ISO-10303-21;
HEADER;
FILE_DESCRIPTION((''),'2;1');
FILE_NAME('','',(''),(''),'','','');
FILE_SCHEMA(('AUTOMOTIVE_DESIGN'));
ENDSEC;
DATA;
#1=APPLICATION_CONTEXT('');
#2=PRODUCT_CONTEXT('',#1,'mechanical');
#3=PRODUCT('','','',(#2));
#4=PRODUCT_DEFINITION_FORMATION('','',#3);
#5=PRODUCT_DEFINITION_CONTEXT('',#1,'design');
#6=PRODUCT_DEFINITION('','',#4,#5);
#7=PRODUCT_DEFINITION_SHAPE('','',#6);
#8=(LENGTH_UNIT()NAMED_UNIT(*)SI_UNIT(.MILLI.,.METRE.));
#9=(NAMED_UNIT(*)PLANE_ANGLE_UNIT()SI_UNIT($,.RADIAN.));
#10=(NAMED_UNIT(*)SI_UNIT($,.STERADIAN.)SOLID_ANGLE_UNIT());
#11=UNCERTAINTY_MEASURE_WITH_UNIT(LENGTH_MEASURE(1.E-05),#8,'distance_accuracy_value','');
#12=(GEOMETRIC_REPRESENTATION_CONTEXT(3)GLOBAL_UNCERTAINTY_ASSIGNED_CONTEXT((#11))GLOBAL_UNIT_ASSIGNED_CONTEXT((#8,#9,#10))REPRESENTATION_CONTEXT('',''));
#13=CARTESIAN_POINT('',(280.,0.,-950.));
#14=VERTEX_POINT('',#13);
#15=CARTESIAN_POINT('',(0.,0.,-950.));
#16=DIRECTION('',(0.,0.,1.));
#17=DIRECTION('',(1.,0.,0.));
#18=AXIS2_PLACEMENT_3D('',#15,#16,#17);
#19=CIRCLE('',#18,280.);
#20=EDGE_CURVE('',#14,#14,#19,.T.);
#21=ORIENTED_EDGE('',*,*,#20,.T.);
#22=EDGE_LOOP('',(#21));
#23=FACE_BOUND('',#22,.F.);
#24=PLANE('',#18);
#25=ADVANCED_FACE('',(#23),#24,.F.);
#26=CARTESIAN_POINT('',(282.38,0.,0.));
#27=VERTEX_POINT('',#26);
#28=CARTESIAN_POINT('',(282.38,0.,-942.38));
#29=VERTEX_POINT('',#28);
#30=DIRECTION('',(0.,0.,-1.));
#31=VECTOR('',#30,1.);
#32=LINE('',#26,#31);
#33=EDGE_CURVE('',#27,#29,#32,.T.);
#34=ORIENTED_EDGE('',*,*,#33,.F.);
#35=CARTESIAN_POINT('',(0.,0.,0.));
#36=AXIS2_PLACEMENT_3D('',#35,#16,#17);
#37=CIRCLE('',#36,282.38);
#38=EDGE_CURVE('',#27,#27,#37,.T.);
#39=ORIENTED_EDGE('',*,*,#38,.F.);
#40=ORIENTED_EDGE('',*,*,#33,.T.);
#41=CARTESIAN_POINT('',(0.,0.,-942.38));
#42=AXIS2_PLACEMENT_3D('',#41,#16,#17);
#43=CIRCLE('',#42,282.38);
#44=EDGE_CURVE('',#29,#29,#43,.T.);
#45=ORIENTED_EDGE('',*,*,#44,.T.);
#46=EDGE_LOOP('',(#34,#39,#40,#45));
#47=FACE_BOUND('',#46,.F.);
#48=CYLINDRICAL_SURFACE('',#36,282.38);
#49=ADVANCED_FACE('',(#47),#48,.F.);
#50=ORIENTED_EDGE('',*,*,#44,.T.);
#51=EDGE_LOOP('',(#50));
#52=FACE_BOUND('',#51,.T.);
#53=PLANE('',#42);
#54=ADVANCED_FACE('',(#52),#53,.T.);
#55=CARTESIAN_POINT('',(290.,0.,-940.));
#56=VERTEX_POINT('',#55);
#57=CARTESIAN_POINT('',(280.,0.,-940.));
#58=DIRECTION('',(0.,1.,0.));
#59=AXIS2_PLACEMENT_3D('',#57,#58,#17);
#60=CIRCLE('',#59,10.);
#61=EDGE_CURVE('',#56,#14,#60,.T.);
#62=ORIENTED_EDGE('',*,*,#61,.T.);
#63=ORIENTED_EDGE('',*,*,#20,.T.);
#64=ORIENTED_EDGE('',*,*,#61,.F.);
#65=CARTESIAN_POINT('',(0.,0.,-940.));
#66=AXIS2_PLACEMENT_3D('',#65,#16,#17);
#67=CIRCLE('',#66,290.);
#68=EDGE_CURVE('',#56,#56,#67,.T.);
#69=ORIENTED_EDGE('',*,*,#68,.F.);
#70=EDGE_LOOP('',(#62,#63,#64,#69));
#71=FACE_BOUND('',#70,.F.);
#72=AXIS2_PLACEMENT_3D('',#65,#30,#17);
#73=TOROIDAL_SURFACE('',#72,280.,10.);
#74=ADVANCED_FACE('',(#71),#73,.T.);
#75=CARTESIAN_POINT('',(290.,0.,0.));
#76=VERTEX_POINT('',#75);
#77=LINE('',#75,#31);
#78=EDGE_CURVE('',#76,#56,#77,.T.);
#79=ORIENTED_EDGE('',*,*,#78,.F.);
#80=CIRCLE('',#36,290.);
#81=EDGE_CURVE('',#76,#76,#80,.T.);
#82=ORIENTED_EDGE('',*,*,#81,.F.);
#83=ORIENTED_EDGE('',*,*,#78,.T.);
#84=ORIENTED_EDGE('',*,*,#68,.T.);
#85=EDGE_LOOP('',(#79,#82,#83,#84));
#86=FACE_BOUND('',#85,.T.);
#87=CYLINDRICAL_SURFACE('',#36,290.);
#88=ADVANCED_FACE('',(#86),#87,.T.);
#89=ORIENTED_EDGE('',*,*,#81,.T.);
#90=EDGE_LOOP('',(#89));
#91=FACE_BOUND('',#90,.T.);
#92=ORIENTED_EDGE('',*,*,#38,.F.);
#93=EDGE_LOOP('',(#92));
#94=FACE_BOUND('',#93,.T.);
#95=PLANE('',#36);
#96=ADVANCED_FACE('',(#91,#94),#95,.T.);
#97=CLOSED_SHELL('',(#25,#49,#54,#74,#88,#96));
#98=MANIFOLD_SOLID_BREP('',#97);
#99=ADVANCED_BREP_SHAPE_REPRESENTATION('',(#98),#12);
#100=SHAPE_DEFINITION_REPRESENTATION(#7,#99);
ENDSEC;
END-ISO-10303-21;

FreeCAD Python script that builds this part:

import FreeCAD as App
import Part
import Sketcher
from FreeCAD import Vector
Q = App.Units.Quantity


def edges_at(feature, points):
    """Names of the edges that pass closest to the given points."""
    edges = feature.Shape.Edges
    near = lambda p: min(range(len(edges)), key=lambda i: edges[i].distToShape(Part.Vertex(*p))[0])
    return sorted({f"Edge{near(p) + 1}" for p in points})


def faces_at(feature, points):
    """Names of the faces that lie closest to the given points."""
    faces = feature.Shape.Faces
    near = lambda p: min(range(len(faces)), key=lambda i: faces[i].distToShape(Part.Vertex(*p))[0])
    return sorted({f"Face{near(p) + 1}" for p in points})

doc = App.newDocument("Part")
body = doc.addObject("PartDesign::Body", "Body")

# Sketch on XY plane
sketch1 = body.newObject("Sketcher::SketchObject", "Sketch")
sketch1.AttachmentSupport = (doc.getObject("XY_Plane"), [""])
sketch1.MapMode = "FlatFace"
sketch1.addGeometry(Part.Circle(Vector(0, 0, 0), Vector(0, 0, 1), 290), False)
sketch1.addConstraint([
    Sketcher.Constraint("Coincident", 0, 3, -1, 1),
    Sketcher.Constraint("Diameter", 0, Q("580 mm")),
])
pad1 = body.newObject("PartDesign::Pad", "Pad")
pad1.Profile = sketch1
pad1.Length = 950
pad1.Reversed = True
doc.recompute()

thickness = body.newObject("PartDesign::Thickness", "Thickness")
thickness.Base = (pad1, faces_at(pad1, [(0, 0, 0)]))
thickness.Value = 7.62
thickness.Reversed = True
thickness.Join = "Arc"
doc.recompute()

fillet = body.newObject("PartDesign::Fillet", "Fillet")
fillet.Base = (thickness, edges_at(thickness, [(-290, 0, -950)]))
fillet.Radius = 10

doc.recompute()
